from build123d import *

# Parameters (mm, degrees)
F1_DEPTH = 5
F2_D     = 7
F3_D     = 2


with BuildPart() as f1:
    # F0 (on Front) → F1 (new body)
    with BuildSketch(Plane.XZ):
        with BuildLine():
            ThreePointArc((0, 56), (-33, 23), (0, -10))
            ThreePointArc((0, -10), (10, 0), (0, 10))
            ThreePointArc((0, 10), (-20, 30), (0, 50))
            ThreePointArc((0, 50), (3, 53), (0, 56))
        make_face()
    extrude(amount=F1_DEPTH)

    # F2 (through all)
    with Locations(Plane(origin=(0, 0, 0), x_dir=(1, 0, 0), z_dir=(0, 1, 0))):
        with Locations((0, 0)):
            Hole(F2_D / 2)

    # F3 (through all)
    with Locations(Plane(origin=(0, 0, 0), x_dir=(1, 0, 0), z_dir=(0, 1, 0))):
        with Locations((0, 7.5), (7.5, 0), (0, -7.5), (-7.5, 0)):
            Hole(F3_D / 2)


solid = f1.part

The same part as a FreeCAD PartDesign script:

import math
import FreeCAD as App
import Part
import Sketcher

doc = App.newDocument("Part")
body = doc.addObject("PartDesign::Body", "Body")

sketch1 = body.newObject("Sketcher::SketchObject", "Sketch")
sketch1.AttachmentSupport = (doc.getObject("XZ_Plane"), [""])
sketch1.MapMode = "FlatFace"
sketch1.addGeometry([
    Part.ArcOfCircle(Part.Circle(App.Vector(0, 23, 0), App.Vector(0, 0, 1), 33), math.radians(90), math.radians(270)),
    Part.ArcOfCircle(Part.Circle(App.Vector(0, 0, 0), App.Vector(0, 0, 1), 10), math.radians(-90), math.radians(90)),
    Part.ArcOfCircle(Part.Circle(App.Vector(0, 30, 0), App.Vector(0, 0, 1), 20), math.radians(90), math.radians(270)),
    Part.ArcOfCircle(Part.Circle(App.Vector(0, 53, 0), App.Vector(0, 0, 1), 3), math.radians(-90), math.radians(90)),
], False)
sketch1.addConstraint([
    Sketcher.Constraint("Tangent", 0, 2, 1, 1),
    Sketcher.Constraint("Tangent", 1, 2, 2, 2),
    Sketcher.Constraint("Tangent", 2, 1, 3, 1),
    Sketcher.Constraint("Tangent", 3, 2, 0, 1),
    Sketcher.Constraint("Coincident", 1, 3, -1, 1),
    Sketcher.Constraint("PointOnObject", 0, 3, -2),
    Sketcher.Constraint("PointOnObject", 2, 3, -2),
    Sketcher.Constraint("PointOnObject", 3, 3, -2),
    Sketcher.Constraint("Radius", 0, 33.0),
    Sketcher.Constraint("Radius", 1, 10.0),
    Sketcher.Constraint("Radius", 2, 20.0),
])
pad1 = body.newObject("PartDesign::Pad", "Pad")
pad1.Profile = sketch1
pad1.Length = 5

sketch2 = body.newObject("Sketcher::SketchObject", "Sketch001")
sketch2.AttachmentSupport = (doc.getObject("XZ_Plane"), [""])
sketch2.MapMode = "FlatFace"
sketch2.addGeometry(Part.Circle(App.Vector(0, 0, 0), App.Vector(0, 0, 1), 3.5), False)
sketch2.addConstraint([
    Sketcher.Constraint("Coincident", 0, 3, -1, 1),
    Sketcher.Constraint("Diameter", 0, 7.0),
])
doc.recompute()
hole = body.newObject("PartDesign::Hole", "Hole")
hole.Profile = sketch2
hole.ThreadType = "None"
hole.Diameter = 7
hole.DepthType = "ThroughAll"
hole.Reversed = True

sketch3 = body.newObject("Sketcher::SketchObject", "Sketch002")
sketch3.AttachmentSupport = (doc.getObject("XZ_Plane"), [""])
sketch3.MapMode = "FlatFace"
sketch3.addGeometry([
    Part.Circle(App.Vector(0, -7.5, 0), App.Vector(0, 0, 1), 1),
    Part.Circle(App.Vector(7.5, 0, 0), App.Vector(0, 0, 1), 1),
    Part.Circle(App.Vector(0, 7.5, 0), App.Vector(0, 0, 1), 1),
    Part.Circle(App.Vector(-7.5, 0, 0), App.Vector(0, 0, 1), 1),
], False)
sketch3.addConstraint([
    Sketcher.Constraint("Equal", 0, 1),
    Sketcher.Constraint("Equal", 1, 2),
    Sketcher.Constraint("Equal", 2, 3),
    Sketcher.Constraint("Symmetric", 0, 3, 2, 3, -1, 1),
    Sketcher.Constraint("Symmetric", 1, 3, 3, 3, -1, 1),
    Sketcher.Constraint("PointOnObject", 0, 3, -2),
    Sketcher.Constraint("PointOnObject", 1, 3, -1),
    Sketcher.Constraint("Diameter", 0, 2.0),
    Sketcher.Constraint("DistanceY", 0, 3, 2, 3, 15.0),
    Sketcher.Constraint("DistanceX", 3, 3, 1, 3, 15.0),
])
doc.recompute()
hole2 = body.newObject("PartDesign::Hole", "Hole001")
hole2.Profile = sketch3
hole2.ThreadType = "None"
hole2.Diameter = 2
hole2.DepthType = "ThroughAll"
hole2.Reversed = True

doc.recompute()
